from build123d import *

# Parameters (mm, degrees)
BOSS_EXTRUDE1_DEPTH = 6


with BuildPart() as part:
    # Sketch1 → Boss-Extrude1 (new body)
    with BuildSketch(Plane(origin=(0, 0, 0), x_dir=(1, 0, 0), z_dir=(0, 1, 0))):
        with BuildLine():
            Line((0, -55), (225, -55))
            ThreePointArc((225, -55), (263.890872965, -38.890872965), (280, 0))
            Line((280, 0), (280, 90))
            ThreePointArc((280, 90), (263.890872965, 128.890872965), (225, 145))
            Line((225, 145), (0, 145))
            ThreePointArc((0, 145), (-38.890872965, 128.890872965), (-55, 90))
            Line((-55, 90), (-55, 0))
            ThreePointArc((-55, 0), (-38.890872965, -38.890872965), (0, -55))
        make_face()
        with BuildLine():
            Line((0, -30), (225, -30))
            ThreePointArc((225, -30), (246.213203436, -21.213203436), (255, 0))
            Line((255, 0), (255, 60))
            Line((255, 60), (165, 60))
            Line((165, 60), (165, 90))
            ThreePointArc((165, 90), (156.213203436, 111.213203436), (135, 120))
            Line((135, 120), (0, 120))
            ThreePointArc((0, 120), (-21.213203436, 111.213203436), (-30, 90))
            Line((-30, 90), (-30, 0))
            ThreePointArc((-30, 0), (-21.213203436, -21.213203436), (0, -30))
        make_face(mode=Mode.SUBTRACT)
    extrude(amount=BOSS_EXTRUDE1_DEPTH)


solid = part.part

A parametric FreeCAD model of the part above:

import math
import FreeCAD as App
import Part
import Sketcher

doc = App.newDocument("Part")
body = doc.addObject("PartDesign::Body", "Body")

# Sketch on XZ plane
sketch1 = body.newObject("Sketcher::SketchObject", "Sketch")
sketch1.AttachmentSupport = (doc.getObject("XZ_Plane"), [""])
sketch1.MapMode = "FlatFace"
sketch1.addGeometry([
    Part.LineSegment(App.Vector(0, 55, 0), App.Vector(225, 55, 0)),  # 0
    Part.ArcOfCircle(Part.Circle(App.Vector(225, 0, 0), App.Vector(0, 0, 1), 55), math.radians(0), math.radians(90)),  # 1
    Part.LineSegment(App.Vector(280, 0, 0), App.Vector(280, -90, 0)),  # 2
    Part.ArcOfCircle(Part.Circle(App.Vector(225, -90, 0), App.Vector(0, 0, 1), 55), math.radians(-90), math.radians(0)),  # 3
    Part.LineSegment(App.Vector(225, -145, 0), App.Vector(0, -145, 0)),  # 4
    Part.ArcOfCircle(Part.Circle(App.Vector(0, -90, 0), App.Vector(0, 0, 1), 55), math.radians(-180), math.radians(-90)),  # 5
    Part.LineSegment(App.Vector(-55, -90, 0), App.Vector(-55, 0, 0)),  # 6
    Part.ArcOfCircle(Part.Circle(App.Vector(0, 0, 0), App.Vector(0, 0, 1), 55), math.radians(90), math.radians(180)),  # 7
    Part.LineSegment(App.Vector(225, 30, 0), App.Vector(0, 30, 0)),  # 8
    Part.ArcOfCircle(Part.Circle(App.Vector(0, 0, 0), App.Vector(0, 0, 1), 30), math.radians(90), math.radians(180)),  # 9
    Part.LineSegment(App.Vector(-30, 0, 0), App.Vector(-30, -90, 0)),  # 10
    Part.ArcOfCircle(Part.Circle(App.Vector(0, -90, 0), App.Vector(0, 0, 1), 30), math.radians(180), math.radians(270)),  # 11
    Part.LineSegment(App.Vector(0, -120, 0), App.Vector(135, -120, 0)),  # 12
    Part.ArcOfCircle(Part.Circle(App.Vector(135, -90, 0), App.Vector(0, 0, 1), 30), math.radians(-90), math.radians(0)),  # 13
    Part.LineSegment(App.Vector(165, -90, 0), App.Vector(165, -60, 0)),  # 14
    Part.LineSegment(App.Vector(165, -60, 0), App.Vector(255, -60, 0)),  # 15
    Part.LineSegment(App.Vector(255, -60, 0), App.Vector(255, 0, 0)),  # 16
    Part.ArcOfCircle(Part.Circle(App.Vector(225, 0, 0), App.Vector(0, 0, 1), 30), math.radians(0), math.radians(90)),  # 17
], False)
sketch1.addConstraint([
    Sketcher.Constraint("Tangent", 0, 2, 1, 2),
    Sketcher.Constraint("Tangent", 1, 1, 2, 1),
    Sketcher.Constraint("Tangent", 2, 2, 3, 2),
    Sketcher.Constraint("Tangent", 3, 1, 4, 1),
    Sketcher.Constraint("Tangent", 4, 2, 5, 2),
    Sketcher.Constraint("Tangent", 5, 1, 6, 1),
    Sketcher.Constraint("Tangent", 6, 2, 7, 2),
    Sketcher.Constraint("Tangent", 7, 1, 0, 1),
    Sketcher.Constraint("Tangent", 8, 2, 9, 1),
    Sketcher.Constraint("Tangent", 9, 2, 10, 1),
    Sketcher.Constraint("Tangent", 10, 2, 11, 1),
    Sketcher.Constraint("Tangent", 11, 2, 12, 1),
    Sketcher.Constraint("Tangent", 12, 2, 13, 1),
    Sketcher.Constraint("Tangent", 13, 2, 14, 1),
    Sketcher.Constraint("Coincident", 14, 2, 15, 1),
    Sketcher.Constraint("Coincident", 15, 2, 16, 1),
    Sketcher.Constraint("Tangent", 16, 2, 17, 1),
    Sketcher.Constraint("Tangent", 17, 2, 8, 1),
    Sketcher.Constraint("Horizontal", 0),
    Sketcher.Constraint("Vertical", 2),
    Sketcher.Constraint("Horizontal", 4),
    Sketcher.Constraint("Vertical", 6),
    Sketcher.Constraint("Horizontal", 8),
    Sketcher.Constraint("Vertical", 10),
    Sketcher.Constraint("Horizontal", 12),
    Sketcher.Constraint("Vertical", 14),
    Sketcher.Constraint("Horizontal", 15),
    Sketcher.Constraint("Vertical", 16),
    Sketcher.Constraint("Coincident", 7, 3, -1, 1),
    Sketcher.Constraint("Coincident", 9, 3, -1, 1),
    Sketcher.Constraint("Coincident", 11, 3, 5, 3),
    Sketcher.Constraint("Coincident", 17, 3, 1, 3),
    Sketcher.Constraint("Equal", 1, 3),
    Sketcher.Constraint("Equal", 3, 5),
    Sketcher.Constraint("Equal", 5, 7),
    Sketcher.Constraint("Equal", 11, 13),
    Sketcher.Constraint("Equal", 15, 2),
    Sketcher.Constraint("Radius", 1, 55.0),
    Sketcher.Constraint("Radius", 9, 30.0),
    Sketcher.Constraint("DistanceX", 0, 1, 0, 2, 225.0),
    Sketcher.Constraint("DistanceX", 12, 1, 12, 2, 135.0),
    Sketcher.Constraint("DistanceY", 14, 1, 14, 2, 30.0),
])
pad1 = body.newObject("PartDesign::Pad", "Pad")
pad1.Profile = sketch1
pad1.Length = 6
pad1.Reversed = True

doc.recompute()
